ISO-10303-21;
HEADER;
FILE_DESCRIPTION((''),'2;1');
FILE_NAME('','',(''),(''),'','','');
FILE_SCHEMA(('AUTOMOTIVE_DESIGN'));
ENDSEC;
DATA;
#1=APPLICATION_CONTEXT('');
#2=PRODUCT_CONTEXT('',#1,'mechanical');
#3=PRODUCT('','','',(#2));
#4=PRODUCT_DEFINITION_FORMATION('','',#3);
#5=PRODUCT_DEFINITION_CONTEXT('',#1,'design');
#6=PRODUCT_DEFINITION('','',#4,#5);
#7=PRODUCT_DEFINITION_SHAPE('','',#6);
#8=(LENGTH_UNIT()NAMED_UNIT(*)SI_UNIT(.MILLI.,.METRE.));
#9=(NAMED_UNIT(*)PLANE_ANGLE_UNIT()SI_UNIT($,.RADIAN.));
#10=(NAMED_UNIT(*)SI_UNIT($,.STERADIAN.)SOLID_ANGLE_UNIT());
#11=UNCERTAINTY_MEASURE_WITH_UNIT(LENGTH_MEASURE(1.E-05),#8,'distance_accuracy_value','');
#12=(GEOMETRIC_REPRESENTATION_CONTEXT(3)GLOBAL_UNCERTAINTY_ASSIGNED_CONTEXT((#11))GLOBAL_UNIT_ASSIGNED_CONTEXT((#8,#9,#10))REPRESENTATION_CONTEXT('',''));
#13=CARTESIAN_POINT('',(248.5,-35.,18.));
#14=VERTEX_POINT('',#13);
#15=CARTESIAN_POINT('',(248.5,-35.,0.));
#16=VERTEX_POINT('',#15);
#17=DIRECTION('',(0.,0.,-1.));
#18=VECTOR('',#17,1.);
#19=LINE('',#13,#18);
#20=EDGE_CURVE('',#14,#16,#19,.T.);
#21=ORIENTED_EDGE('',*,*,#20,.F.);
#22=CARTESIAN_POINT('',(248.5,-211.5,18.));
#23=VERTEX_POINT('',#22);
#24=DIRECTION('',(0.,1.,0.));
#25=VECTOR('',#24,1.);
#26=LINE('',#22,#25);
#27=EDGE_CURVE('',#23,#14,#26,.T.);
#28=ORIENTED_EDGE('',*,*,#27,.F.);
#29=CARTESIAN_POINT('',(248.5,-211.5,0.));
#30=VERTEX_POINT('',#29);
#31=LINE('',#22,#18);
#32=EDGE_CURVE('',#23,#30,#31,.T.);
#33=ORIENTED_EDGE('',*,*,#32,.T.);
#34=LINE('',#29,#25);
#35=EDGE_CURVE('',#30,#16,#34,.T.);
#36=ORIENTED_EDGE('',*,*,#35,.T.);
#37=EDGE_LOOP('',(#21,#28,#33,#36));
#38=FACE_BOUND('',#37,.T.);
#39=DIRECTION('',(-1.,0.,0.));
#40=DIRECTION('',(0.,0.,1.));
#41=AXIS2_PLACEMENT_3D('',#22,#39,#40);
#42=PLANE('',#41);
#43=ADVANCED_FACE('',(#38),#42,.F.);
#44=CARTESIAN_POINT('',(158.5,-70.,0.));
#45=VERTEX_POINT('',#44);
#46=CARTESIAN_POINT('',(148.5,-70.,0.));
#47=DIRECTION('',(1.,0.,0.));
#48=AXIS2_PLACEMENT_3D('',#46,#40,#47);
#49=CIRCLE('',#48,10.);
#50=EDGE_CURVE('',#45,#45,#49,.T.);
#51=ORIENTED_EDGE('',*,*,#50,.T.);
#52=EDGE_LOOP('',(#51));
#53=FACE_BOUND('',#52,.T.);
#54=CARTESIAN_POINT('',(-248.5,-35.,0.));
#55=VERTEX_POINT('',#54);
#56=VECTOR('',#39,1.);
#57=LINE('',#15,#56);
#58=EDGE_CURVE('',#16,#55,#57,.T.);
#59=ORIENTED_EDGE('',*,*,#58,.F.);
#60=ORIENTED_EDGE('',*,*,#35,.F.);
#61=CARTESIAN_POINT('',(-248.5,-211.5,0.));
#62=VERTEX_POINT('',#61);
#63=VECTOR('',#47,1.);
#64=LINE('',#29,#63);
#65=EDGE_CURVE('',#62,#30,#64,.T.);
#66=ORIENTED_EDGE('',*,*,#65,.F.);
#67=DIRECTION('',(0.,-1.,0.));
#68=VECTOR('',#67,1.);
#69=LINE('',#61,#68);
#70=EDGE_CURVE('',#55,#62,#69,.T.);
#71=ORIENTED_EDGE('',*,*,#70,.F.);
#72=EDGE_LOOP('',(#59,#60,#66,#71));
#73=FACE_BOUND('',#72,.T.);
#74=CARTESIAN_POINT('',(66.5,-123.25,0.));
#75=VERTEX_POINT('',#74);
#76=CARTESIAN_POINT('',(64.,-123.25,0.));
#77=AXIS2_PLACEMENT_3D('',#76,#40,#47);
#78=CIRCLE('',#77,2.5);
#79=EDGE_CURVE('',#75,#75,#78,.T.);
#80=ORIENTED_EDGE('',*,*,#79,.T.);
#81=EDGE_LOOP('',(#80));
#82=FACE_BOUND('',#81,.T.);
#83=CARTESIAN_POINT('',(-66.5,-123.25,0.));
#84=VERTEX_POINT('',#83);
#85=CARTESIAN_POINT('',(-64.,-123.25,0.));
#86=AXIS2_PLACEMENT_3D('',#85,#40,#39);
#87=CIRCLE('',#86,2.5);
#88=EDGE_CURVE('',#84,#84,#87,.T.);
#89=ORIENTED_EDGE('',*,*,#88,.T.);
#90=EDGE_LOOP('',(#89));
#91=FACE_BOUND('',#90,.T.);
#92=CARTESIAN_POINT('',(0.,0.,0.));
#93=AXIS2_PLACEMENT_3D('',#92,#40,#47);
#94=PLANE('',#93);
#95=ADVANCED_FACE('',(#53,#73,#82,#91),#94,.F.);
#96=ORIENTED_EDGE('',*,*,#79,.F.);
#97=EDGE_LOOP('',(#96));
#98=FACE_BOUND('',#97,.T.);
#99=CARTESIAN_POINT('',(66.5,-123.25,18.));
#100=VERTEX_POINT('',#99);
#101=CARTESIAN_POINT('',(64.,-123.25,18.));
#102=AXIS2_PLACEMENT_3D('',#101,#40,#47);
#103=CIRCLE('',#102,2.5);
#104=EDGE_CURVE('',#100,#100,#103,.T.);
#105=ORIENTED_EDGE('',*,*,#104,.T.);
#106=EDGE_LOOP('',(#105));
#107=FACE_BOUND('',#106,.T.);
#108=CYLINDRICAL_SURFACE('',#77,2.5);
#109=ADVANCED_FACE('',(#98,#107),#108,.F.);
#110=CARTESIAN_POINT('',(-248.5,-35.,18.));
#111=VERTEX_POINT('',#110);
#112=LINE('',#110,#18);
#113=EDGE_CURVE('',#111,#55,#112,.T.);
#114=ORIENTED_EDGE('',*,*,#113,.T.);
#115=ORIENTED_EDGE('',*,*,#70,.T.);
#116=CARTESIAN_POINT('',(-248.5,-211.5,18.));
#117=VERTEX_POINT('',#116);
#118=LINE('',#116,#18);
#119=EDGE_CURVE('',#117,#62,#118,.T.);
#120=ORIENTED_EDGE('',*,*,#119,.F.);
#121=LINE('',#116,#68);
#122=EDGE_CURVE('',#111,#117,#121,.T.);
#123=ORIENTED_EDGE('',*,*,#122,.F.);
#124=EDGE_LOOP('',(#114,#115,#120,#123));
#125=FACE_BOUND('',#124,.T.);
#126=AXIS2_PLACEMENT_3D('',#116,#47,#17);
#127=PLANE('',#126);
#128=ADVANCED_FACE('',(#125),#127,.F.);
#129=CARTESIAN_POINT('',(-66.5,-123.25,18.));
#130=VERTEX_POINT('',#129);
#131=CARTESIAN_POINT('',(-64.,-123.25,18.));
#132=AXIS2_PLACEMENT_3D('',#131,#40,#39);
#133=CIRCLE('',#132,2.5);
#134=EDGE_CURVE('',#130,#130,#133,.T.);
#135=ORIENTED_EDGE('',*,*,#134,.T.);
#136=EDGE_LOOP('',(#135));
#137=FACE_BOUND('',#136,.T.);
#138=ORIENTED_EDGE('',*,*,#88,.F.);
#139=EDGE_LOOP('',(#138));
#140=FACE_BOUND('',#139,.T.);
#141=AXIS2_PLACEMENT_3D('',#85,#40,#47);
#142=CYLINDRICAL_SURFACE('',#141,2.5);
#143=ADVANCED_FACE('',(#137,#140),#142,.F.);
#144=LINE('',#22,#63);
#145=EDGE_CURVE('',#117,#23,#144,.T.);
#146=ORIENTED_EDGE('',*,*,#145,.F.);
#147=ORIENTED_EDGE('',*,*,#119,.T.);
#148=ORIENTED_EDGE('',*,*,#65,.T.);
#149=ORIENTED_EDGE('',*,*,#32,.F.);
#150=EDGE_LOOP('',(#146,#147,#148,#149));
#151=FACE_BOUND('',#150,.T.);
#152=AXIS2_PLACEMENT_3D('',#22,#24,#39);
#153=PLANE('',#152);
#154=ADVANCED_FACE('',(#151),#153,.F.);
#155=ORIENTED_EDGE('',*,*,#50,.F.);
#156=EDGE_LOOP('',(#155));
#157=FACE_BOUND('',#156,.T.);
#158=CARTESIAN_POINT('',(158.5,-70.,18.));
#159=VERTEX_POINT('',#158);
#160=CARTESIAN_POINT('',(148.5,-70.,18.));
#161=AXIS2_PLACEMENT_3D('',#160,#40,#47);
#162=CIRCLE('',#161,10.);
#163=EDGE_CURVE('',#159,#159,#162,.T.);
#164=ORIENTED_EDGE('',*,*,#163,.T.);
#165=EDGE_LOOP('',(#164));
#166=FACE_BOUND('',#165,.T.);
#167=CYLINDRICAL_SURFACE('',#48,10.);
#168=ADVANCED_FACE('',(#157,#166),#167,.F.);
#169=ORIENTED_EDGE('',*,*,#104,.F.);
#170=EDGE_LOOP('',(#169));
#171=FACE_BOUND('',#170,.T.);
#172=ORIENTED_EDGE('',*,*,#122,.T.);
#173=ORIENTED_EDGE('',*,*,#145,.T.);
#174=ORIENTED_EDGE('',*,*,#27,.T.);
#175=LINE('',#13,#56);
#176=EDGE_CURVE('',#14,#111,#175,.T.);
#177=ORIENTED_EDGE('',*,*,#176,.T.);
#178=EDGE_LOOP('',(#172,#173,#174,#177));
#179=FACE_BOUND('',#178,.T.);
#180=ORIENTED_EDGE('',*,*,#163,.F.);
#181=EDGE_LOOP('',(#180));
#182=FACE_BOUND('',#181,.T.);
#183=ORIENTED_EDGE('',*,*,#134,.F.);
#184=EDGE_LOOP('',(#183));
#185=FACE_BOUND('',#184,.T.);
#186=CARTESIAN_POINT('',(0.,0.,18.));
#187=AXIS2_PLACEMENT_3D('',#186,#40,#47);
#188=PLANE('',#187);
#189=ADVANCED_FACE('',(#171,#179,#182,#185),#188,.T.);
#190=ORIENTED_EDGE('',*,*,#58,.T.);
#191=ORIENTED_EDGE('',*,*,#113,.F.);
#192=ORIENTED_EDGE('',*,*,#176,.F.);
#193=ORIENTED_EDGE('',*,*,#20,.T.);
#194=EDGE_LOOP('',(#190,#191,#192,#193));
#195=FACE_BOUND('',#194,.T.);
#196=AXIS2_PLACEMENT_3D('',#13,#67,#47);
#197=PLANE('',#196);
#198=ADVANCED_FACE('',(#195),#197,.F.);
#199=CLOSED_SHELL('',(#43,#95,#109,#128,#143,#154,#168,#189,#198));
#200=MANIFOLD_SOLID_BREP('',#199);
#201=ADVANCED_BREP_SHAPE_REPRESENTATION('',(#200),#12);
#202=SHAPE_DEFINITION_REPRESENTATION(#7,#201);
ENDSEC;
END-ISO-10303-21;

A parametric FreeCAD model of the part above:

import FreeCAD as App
import Part
import Sketcher
from FreeCAD import Vector
Q = App.Units.Quantity


def add_polygon(sketch, points):
    """Adds a closed chain of lines whose ends are joined by coincident constraints."""
    first, n = sketch.GeometryCount, len(points)
    for a, b in zip(points, points[1:] + points[:1]):
        sketch.addGeometry(Part.LineSegment(App.Vector(*a, 0), App.Vector(*b, 0)), False)
    for i in range(n):
        sketch.addConstraint(Sketcher.Constraint("Coincident", first + i, 2, first + (i + 1) % n, 1))

doc = App.newDocument("Part")
body = doc.addObject("PartDesign::Body", "Body")

sketch1 = body.newObject("Sketcher::SketchObject", "Sketch")
sketch1.AttachmentSupport = (doc.getObject("XY_Plane"), [""])
sketch1.MapMode = "FlatFace"
add_polygon(sketch1, [(-248.5, -35), (-248.5, -211.5), (248.5, -211.5), (248.5, -35)])
sketch1.addConstraint(Sketcher.Constraint("Vertical", 0))
sketch1.addConstraint(Sketcher.Constraint("Horizontal", 1))
sketch1.addConstraint(Sketcher.Constraint("Vertical", 2))
sketch1.addConstraint(Sketcher.Constraint("Horizontal", 3))
sketch1.addConstraint(Sketcher.Constraint("DistanceX", 1, 1, 1, 2, Q("497 mm")))
sketch1.addConstraint(Sketcher.Constraint("DistanceY", 0, 2, 0, 1, Q("176.5 mm")))
sketch1.addConstraint(Sketcher.Constraint("DistanceY", 2, 2, -1, 1, Q("35 mm")))
sketch1.addConstraint(Sketcher.Constraint("DistanceX", 0, 2, -1, 1, Q("248.5 mm")))
pad1 = body.newObject("PartDesign::Pad", "Pad")
pad1.Profile = sketch1
pad1.Length = 18

sketch2 = body.newObject("Sketcher::SketchObject", "Sketch001")
sketch2.AttachmentSupport = (doc.getObject("XY_Plane"), [""])
sketch2.MapMode = "FlatFace"
sketch2.AttachmentOffset = App.Placement(Vector(0, 0, 18), App.Rotation())
sketch2.addGeometry(Part.Circle(Vector(64, -123.25, 0), Vector(0, 0, 1), 2.5), False)
sketch2.addGeometry(Part.Circle(Vector(-64, -123.25, 0), Vector(0, 0, 1), 2.5), False)
sketch2.addConstraint(Sketcher.Constraint("Equal", 0, 1))
sketch2.addConstraint(Sketcher.Constraint("Symmetric", 0, 3, 1, 3, -2))
sketch2.addConstraint(Sketcher.Constraint("Diameter", 0, Q("5 mm")))
sketch2.addConstraint(Sketcher.Constraint("DistanceX", -1, 1, 0, 3, Q("64 mm")))
sketch2.addConstraint(Sketcher.Constraint("DistanceY", 0, 3, -1, 1, Q("123.25 mm")))
pocket1 = body.newObject("PartDesign::Pocket", "Pocket")
pocket1.Profile = sketch2
pocket1.Length = 18

sketch3 = body.newObject("Sketcher::SketchObject", "Sketch002")
sketch3.AttachmentSupport = (doc.getObject("XY_Plane"), [""])
sketch3.MapMode = "FlatFace"
sketch3.AttachmentOffset = App.Placement(Vector(0, 0, 18), App.Rotation())
sketch3.addGeometry(Part.Circle(Vector(148.5, -70, 0), Vector(0, 0, 1), 10), False)
sketch3.addConstraint(Sketcher.Constraint("Diameter", 0, Q("20 mm")))
sketch3.addConstraint(Sketcher.Constraint("DistanceY", 0, 3, -1, 1, Q("70 mm")))
sketch3.addConstraint(Sketcher.Constraint("DistanceX", -1, 1, 0, 3, Q("148.5 mm")))
pocket2 = body.newObject("PartDesign::Pocket", "Pocket001")
pocket2.Profile = sketch3
pocket2.Length = 18

doc.recompute()
